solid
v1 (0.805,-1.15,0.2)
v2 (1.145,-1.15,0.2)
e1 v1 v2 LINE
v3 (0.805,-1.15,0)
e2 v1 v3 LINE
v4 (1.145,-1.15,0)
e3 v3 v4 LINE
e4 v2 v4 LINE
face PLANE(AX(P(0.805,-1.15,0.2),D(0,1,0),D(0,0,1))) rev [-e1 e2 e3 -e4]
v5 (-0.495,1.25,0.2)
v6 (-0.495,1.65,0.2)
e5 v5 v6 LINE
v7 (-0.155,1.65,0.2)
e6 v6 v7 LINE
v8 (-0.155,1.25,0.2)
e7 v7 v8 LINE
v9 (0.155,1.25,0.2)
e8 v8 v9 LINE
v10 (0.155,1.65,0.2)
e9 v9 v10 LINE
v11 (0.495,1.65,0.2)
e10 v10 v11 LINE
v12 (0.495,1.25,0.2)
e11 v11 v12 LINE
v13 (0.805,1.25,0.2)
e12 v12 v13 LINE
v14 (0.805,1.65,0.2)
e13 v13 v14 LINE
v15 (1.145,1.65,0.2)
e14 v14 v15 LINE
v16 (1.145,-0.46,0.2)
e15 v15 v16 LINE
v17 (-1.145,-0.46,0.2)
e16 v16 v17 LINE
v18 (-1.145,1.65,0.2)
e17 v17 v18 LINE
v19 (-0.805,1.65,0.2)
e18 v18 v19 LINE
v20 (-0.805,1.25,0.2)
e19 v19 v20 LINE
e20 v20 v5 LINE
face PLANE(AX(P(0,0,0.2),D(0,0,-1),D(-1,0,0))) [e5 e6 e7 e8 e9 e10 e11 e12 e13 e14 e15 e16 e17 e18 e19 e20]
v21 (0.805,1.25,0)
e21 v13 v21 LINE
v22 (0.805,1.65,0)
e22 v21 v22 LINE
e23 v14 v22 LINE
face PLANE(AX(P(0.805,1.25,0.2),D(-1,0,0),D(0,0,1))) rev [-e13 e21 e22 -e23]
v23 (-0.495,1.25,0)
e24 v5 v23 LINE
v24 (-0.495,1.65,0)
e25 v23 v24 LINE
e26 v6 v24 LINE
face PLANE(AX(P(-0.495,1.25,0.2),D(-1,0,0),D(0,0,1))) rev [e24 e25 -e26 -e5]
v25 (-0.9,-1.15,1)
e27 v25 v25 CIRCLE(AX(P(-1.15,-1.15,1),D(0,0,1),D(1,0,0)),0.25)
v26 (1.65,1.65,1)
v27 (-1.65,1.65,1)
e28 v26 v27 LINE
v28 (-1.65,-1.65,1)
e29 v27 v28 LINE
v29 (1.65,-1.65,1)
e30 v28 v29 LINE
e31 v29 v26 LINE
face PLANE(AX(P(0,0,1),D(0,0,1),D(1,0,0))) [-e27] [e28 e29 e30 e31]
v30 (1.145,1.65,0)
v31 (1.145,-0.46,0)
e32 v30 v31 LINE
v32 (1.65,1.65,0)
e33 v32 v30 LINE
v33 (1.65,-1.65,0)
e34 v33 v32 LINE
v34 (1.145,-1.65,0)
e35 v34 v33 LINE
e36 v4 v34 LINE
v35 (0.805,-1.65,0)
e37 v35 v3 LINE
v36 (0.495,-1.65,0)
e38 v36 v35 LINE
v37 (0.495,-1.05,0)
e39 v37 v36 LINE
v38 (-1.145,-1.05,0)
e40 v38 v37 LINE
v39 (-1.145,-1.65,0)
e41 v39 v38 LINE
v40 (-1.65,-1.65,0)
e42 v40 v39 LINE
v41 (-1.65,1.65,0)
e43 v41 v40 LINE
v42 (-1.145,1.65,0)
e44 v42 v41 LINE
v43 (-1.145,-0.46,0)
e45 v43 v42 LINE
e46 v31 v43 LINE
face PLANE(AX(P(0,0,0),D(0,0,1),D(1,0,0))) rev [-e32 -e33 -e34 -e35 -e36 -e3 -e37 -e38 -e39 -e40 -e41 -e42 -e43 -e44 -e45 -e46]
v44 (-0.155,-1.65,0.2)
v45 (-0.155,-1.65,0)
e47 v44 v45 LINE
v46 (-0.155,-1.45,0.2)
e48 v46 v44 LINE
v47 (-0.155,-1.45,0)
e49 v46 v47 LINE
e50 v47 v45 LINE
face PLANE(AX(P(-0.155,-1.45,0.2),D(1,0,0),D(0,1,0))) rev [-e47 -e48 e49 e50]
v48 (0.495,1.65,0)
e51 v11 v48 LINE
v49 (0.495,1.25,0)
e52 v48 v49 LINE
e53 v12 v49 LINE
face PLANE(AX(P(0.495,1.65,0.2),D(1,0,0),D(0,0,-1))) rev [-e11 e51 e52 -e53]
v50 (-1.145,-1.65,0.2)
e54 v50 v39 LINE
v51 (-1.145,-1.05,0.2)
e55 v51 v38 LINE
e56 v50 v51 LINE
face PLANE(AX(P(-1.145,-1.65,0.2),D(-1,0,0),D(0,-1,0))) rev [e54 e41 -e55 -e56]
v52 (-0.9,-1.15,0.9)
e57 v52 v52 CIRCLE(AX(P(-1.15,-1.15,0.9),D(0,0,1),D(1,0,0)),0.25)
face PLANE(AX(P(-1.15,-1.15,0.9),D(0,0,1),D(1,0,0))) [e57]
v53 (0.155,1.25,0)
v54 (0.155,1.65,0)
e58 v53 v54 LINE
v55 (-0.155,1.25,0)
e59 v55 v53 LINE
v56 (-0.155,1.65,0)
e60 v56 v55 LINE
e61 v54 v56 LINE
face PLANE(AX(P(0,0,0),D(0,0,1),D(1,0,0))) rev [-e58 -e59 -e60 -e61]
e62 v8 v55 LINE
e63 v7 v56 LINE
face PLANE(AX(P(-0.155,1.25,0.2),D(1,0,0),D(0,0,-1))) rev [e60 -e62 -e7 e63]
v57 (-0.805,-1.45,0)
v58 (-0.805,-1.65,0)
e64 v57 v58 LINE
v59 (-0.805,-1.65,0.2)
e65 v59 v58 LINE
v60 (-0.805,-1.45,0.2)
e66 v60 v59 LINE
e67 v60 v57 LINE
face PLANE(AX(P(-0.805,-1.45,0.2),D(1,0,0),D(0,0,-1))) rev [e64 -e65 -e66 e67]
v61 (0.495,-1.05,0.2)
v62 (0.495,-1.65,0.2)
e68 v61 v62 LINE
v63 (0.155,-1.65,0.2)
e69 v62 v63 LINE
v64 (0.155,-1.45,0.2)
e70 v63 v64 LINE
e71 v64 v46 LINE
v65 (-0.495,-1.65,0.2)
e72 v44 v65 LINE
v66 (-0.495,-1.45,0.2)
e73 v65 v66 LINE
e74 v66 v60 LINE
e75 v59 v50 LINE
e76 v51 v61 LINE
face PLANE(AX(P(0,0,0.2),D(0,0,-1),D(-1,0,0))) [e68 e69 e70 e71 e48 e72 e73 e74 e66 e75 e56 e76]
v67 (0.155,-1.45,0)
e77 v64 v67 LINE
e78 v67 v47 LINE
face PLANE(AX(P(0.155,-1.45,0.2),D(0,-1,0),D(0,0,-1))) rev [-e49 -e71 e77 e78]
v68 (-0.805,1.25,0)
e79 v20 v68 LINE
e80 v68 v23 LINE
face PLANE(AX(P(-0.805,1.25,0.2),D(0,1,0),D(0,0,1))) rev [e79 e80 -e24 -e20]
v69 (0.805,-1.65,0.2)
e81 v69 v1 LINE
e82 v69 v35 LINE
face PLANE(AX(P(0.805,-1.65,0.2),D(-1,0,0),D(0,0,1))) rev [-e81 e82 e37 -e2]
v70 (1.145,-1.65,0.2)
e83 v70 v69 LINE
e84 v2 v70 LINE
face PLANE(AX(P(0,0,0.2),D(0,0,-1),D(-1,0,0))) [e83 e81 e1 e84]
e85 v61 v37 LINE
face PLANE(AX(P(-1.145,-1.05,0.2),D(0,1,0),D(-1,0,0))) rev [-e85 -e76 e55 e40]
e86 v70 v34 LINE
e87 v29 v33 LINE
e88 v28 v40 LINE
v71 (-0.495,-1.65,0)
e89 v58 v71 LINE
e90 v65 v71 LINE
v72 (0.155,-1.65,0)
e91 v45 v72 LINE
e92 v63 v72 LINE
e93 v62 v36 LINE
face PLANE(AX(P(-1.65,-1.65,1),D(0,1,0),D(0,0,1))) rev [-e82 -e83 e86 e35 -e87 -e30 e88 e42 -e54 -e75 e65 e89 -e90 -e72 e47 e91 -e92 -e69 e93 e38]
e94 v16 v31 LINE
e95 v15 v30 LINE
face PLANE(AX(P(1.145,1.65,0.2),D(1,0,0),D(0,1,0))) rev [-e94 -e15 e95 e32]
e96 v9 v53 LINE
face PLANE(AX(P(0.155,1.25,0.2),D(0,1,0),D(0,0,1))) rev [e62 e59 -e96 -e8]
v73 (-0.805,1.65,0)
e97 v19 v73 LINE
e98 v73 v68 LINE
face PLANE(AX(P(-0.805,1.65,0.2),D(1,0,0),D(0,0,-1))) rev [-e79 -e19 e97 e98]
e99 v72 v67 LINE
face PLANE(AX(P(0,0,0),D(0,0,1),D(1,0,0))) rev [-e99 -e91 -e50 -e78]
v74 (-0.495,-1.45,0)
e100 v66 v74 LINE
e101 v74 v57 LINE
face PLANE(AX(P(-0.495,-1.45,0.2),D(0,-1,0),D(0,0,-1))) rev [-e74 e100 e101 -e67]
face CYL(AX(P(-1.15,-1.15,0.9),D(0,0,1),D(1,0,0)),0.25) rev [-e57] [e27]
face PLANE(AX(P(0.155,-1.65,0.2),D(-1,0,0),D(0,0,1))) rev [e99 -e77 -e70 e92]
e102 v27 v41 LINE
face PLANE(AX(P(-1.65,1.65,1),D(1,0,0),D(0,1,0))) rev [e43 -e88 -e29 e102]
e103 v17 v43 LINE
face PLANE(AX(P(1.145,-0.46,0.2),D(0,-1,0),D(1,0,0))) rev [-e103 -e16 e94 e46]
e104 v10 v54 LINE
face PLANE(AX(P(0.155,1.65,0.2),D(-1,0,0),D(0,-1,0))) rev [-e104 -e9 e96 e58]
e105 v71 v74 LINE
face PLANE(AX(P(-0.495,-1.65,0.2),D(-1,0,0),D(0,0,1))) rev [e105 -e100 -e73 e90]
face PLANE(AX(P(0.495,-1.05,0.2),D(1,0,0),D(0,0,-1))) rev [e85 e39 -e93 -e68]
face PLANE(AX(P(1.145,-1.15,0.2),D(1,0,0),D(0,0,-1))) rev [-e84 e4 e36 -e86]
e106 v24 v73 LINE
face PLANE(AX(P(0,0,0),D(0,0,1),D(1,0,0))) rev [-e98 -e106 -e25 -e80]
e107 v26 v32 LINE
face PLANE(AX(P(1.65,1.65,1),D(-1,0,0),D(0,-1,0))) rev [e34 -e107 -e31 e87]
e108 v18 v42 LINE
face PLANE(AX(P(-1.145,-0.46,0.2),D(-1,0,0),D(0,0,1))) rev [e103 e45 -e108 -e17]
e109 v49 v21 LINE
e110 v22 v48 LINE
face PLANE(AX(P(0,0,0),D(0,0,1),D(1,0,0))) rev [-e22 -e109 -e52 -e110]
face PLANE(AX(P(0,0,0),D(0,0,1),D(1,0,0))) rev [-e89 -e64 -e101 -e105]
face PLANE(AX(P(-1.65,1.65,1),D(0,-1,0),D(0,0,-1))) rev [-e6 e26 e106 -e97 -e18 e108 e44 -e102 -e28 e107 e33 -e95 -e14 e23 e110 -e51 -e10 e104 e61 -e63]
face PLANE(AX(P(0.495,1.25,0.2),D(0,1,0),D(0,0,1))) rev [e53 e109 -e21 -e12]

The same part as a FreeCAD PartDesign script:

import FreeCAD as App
import Part
import Sketcher
from FreeCAD import Vector
Q = App.Units.Quantity

doc = App.newDocument("Part")
body = doc.addObject("PartDesign::Body", "Body")

sketch1 = body.newObject("Sketcher::SketchObject", "Sketch")
sketch1.AttachmentSupport = (doc.getObject("XY_Plane"), [""])
sketch1.MapMode = "FlatFace"
sketch1.addGeometry([
    Part.LineSegment(Vector(-1.65, 1.65, 0), Vector(-1.65, -1.65, 0)),
    Part.LineSegment(Vector(-1.65, -1.65, 0), Vector(1.65, -1.65, 0)),
    Part.LineSegment(Vector(1.65, -1.65, 0), Vector(1.65, 1.65, 0)),
    Part.LineSegment(Vector(1.65, 1.65, 0), Vector(-1.65, 1.65, 0)),
], False)
sketch1.addConstraint([
    Sketcher.Constraint("Coincident", 0, 2, 1, 1),
    Sketcher.Constraint("Coincident", 1, 2, 2, 1),
    Sketcher.Constraint("Coincident", 2, 2, 3, 1),
    Sketcher.Constraint("Coincident", 3, 2, 0, 1),
    Sketcher.Constraint("Vertical", 0),
    Sketcher.Constraint("Horizontal", 1),
    Sketcher.Constraint("Vertical", 2),
    Sketcher.Constraint("Horizontal", 3),
    Sketcher.Constraint("Symmetric", 0, 2, 2, 2, -1, 1),
    Sketcher.Constraint("Equal", 3, 0),
    Sketcher.Constraint("DistanceX", 1, 1, 1, 2, Q("3.3 mm")),
])
pad1 = body.newObject("PartDesign::Pad", "Pad")
pad1.Profile = sketch1
pad1.Length = 1

sketch2 = body.newObject("Sketcher::SketchObject", "Sketch001")
sketch2.AttachmentSupport = (doc.getObject("XY_Plane"), [""])
sketch2.MapMode = "FlatFace"
sketch2.AttachmentOffset = App.Placement(Vector(0, 0, 1), App.Rotation())
sketch2.addGeometry(Part.Circle(Vector(-1.15, -1.15, 0), Vector(0, 0, 1), 0.25), False)
sketch2.addConstraint([
    Sketcher.Constraint("Diameter", 0, Q("0.5 mm")),
    Sketcher.Constraint("DistanceX", 0, 3, -1, 1, Q("1.15 mm")),
    Sketcher.Constraint("DistanceY", 0, 3, -1, 1, Q("1.15 mm")),
])
pocket1 = body.newObject("PartDesign::Pocket", "Pocket")
pocket1.Profile = sketch2
pocket1.Length = 0.1

sketch3 = body.newObject("Sketcher::SketchObject", "Sketch002")
sketch3.AttachmentSupport = (doc.getObject("XY_Plane"), [""])
sketch3.MapMode = "FlatFace"
sketch3.addGeometry([
    Part.LineSegment(Vector(1.145, 1.65, 0), Vector(1.145, -0.46, 0)),
    Part.LineSegment(Vector(1.145, -0.46, 0), Vector(-1.145, -0.46, 0)),
    Part.LineSegment(Vector(-1.145, -0.46, 0), Vector(-1.145, 1.65, 0)),
    Part.LineSegment(Vector(-1.145, 1.65, 0), Vector(-0.805, 1.65, 0)),
    Part.LineSegment(Vector(-0.805, 1.65, 0), Vector(-0.805, 1.25, 0)),
    Part.LineSegment(Vector(-0.805, 1.25, 0), Vector(-0.495, 1.25, 0)),
    Part.LineSegment(Vector(-0.495, 1.25, 0), Vector(-0.495, 1.65, 0)),
    Part.LineSegment(Vector(-0.495, 1.65, 0), Vector(-0.155, 1.65, 0)),
    Part.LineSegment(Vector(-0.155, 1.65, 0), Vector(-0.155, 1.25, 0)),
    Part.LineSegment(Vector(-0.155, 1.25, 0), Vector(0.155, 1.25, 0)),
    Part.LineSegment(Vector(0.155, 1.25, 0), Vector(0.155, 1.65, 0)),
    Part.LineSegment(Vector(0.155, 1.65, 0), Vector(0.495, 1.65, 0)),
    Part.LineSegment(Vector(0.495, 1.65, 0), Vector(0.495, 1.25, 0)),
    Part.LineSegment(Vector(0.495, 1.25, 0), Vector(0.805, 1.25, 0)),
    Part.LineSegment(Vector(0.805, 1.25, 0), Vector(0.805, 1.65, 0)),
    Part.LineSegment(Vector(0.805, 1.65, 0), Vector(1.145, 1.65, 0)),
    Part.LineSegment(Vector(-1.145, -1.65, 0), Vector(-1.145, -1.05, 0)),
    Part.LineSegment(Vector(-1.145, -1.05, 0), Vector(0.495, -1.05, 0)),
    Part.LineSegment(Vector(0.495, -1.05, 0), Vector(0.495, -1.65, 0)),
    Part.LineSegment(Vector(0.495, -1.65, 0), Vector(0.155, -1.65, 0)),
    Part.LineSegment(Vector(0.155, -1.65, 0), Vector(0.155, -1.45, 0)),
    Part.LineSegment(Vector(0.155, -1.45, 0), Vector(-0.155, -1.45, 0)),
    Part.LineSegment(Vector(-0.155, -1.45, 0), Vector(-0.155, -1.65, 0)),
    Part.LineSegment(Vector(-0.155, -1.65, 0), Vector(-0.495, -1.65, 0)),
    Part.LineSegment(Vector(-0.495, -1.65, 0), Vector(-0.495, -1.45, 0)),
    Part.LineSegment(Vector(-0.495, -1.45, 0), Vector(-0.805, -1.45, 0)),
    Part.LineSegment(Vector(-0.805, -1.45, 0), Vector(-0.805, -1.65, 0)),
    Part.LineSegment(Vector(-0.805, -1.65, 0), Vector(-1.145, -1.65, 0)),
    Part.LineSegment(Vector(1.145, -1.15, 0), Vector(1.145, -1.65, 0)),
    Part.LineSegment(Vector(1.145, -1.65, 0), Vector(0.805, -1.65, 0)),
    Part.LineSegment(Vector(0.805, -1.65, 0), Vector(0.805, -1.15, 0)),
    Part.LineSegment(Vector(0.805, -1.15, 0), Vector(1.145, -1.15, 0)),
], False)
sketch3.addConstraint([
    Sketcher.Constraint("Coincident", 0, 2, 1, 1),
    Sketcher.Constraint("Coincident", 1, 2, 2, 1),
    Sketcher.Constraint("Coincident", 2, 2, 3, 1),
    Sketcher.Constraint("Coincident", 3, 2, 4, 1),
    Sketcher.Constraint("Coincident", 4, 2, 5, 1),
    Sketcher.Constraint("Coincident", 5, 2, 6, 1),
    Sketcher.Constraint("Coincident", 6, 2, 7, 1),
    Sketcher.Constraint("Coincident", 7, 2, 8, 1),
    Sketcher.Constraint("Coincident", 8, 2, 9, 1),
    Sketcher.Constraint("Coincident", 9, 2, 10, 1),
    Sketcher.Constraint("Coincident", 10, 2, 11, 1),
    Sketcher.Constraint("Coincident", 11, 2, 12, 1),
    Sketcher.Constraint("Coincident", 12, 2, 13, 1),
    Sketcher.Constraint("Coincident", 13, 2, 14, 1),
    Sketcher.Constraint("Coincident", 14, 2, 15, 1),
    Sketcher.Constraint("Coincident", 15, 2, 0, 1),
    Sketcher.Constraint("Coincident", 16, 2, 17, 1),
    Sketcher.Constraint("Coincident", 17, 2, 18, 1),
    Sketcher.Constraint("Coincident", 18, 2, 19, 1),
    Sketcher.Constraint("Coincident", 19, 2, 20, 1),
    Sketcher.Constraint("Coincident", 20, 2, 21, 1),
    Sketcher.Constraint("Coincident", 21, 2, 22, 1),
    Sketcher.Constraint("Coincident", 22, 2, 23, 1),
    Sketcher.Constraint("Coincident", 23, 2, 24, 1),
    Sketcher.Constraint("Coincident", 24, 2, 25, 1),
    Sketcher.Constraint("Coincident", 25, 2, 26, 1),
    Sketcher.Constraint("Coincident", 26, 2, 27, 1),
    Sketcher.Constraint("Coincident", 27, 2, 16, 1),
    Sketcher.Constraint("Coincident", 28, 2, 29, 1),
    Sketcher.Constraint("Coincident", 29, 2, 30, 1),
    Sketcher.Constraint("Coincident", 30, 2, 31, 1),
    Sketcher.Constraint("Coincident", 31, 2, 28, 1),
    Sketcher.Constraint("Vertical", 0),
    Sketcher.Constraint("Horizontal", 1),
    Sketcher.Constraint("Vertical", 2),
    Sketcher.Constraint("Horizontal", 3),
    Sketcher.Constraint("Vertical", 4),
    Sketcher.Constraint("Horizontal", 5),
    Sketcher.Constraint("Vertical", 6),
    Sketcher.Constraint("Horizontal", 7),
    Sketcher.Constraint("Vertical", 8),
    Sketcher.Constraint("Horizontal", 9),
    Sketcher.Constraint("Vertical", 10),
    Sketcher.Constraint("Horizontal", 11),
    Sketcher.Constraint("Vertical", 12),
    Sketcher.Constraint("Horizontal", 13),
    Sketcher.Constraint("Vertical", 14),
    Sketcher.Constraint("Horizontal", 15),
    Sketcher.Constraint("Vertical", 16),
    Sketcher.Constraint("Horizontal", 17),
    Sketcher.Constraint("Vertical", 18),
    Sketcher.Constraint("Horizontal", 19),
    Sketcher.Constraint("Vertical", 20),
    Sketcher.Constraint("Horizontal", 21),
    Sketcher.Constraint("Vertical", 22),
    Sketcher.Constraint("Horizontal", 23),
    Sketcher.Constraint("Vertical", 24),
    Sketcher.Constraint("Horizontal", 25),
    Sketcher.Constraint("Vertical", 26),
    Sketcher.Constraint("Horizontal", 27),
    Sketcher.Constraint("Vertical", 28),
    Sketcher.Constraint("Horizontal", 29),
    Sketcher.Constraint("Vertical", 30),
    Sketcher.Constraint("Horizontal", 31),
    Sketcher.Constraint("Symmetric", 6, 2, 18, 2, -1, 1),
    Sketcher.Constraint("Symmetric", 10, 2, 22, 2, -1, 1),
    Sketcher.Constraint("Symmetric", 14, 2, 26, 2, -1, 1),
    Sketcher.Constraint("Symmetric", 2, 2, 28, 2, -1, 1),
    Sketcher.Constraint("Symmetric", 7, 2, 10, 2, -2),
    Sketcher.Constraint("Symmetric", 5, 2, 12, 2, -2),
    Sketcher.Constraint("Symmetric", 3, 2, 14, 2, -2),
    Sketcher.Constraint("Horizontal", 3, 2, 6, 2),
    Sketcher.Constraint("Horizontal", 5, 2, 8, 2),
    Sketcher.Constraint("Horizontal", 21, 2, 24, 2),
    Sketcher.Constraint("Vertical", 2, 2, 16, 2),
    Sketcher.Constraint("Vertical", 10, 2, 19, 2),
    Sketcher.Constraint("Vertical", 6, 2, 23, 2),
    Sketcher.Constraint("Vertical", 15, 2, 28, 2),
    Sketcher.Constraint("Vertical", 14, 2, 29, 2),
    Sketcher.Constraint("Equal", 3, 7),
    Sketcher.Constraint("Equal", 5, 9),
    Sketcher.Constraint("DistanceY", 4, 2, 4, 1, Q("0.4 mm")),
    Sketcher.Constraint("DistanceY", 16, 1, 16, 2, Q("0.6 mm")),
    Sketcher.Constraint("DistanceY", 20, 1, 20, 2, Q("0.2 mm")),
    Sketcher.Constraint("DistanceY", 28, 2, 28, 1, Q("0.5 mm")),
    Sketcher.Constraint("DistanceX", 1, 2, 1, 1, Q("2.29 mm")),
    Sketcher.Constraint("DistanceX", 3, 1, 3, 2, Q("0.34 mm")),
    Sketcher.Constraint("DistanceY", 0, 2, 0, 1, Q("2.11 mm")),
    Sketcher.Constraint("DistanceY", 16, 2, 4, 2, Q("2.3 mm")),
])
pocket2 = body.newObject("PartDesign::Pocket", "Pocket001")
pocket2.Profile = sketch3
pocket2.Length = 0.2
pocket2.Reversed = True

doc.recompute()
